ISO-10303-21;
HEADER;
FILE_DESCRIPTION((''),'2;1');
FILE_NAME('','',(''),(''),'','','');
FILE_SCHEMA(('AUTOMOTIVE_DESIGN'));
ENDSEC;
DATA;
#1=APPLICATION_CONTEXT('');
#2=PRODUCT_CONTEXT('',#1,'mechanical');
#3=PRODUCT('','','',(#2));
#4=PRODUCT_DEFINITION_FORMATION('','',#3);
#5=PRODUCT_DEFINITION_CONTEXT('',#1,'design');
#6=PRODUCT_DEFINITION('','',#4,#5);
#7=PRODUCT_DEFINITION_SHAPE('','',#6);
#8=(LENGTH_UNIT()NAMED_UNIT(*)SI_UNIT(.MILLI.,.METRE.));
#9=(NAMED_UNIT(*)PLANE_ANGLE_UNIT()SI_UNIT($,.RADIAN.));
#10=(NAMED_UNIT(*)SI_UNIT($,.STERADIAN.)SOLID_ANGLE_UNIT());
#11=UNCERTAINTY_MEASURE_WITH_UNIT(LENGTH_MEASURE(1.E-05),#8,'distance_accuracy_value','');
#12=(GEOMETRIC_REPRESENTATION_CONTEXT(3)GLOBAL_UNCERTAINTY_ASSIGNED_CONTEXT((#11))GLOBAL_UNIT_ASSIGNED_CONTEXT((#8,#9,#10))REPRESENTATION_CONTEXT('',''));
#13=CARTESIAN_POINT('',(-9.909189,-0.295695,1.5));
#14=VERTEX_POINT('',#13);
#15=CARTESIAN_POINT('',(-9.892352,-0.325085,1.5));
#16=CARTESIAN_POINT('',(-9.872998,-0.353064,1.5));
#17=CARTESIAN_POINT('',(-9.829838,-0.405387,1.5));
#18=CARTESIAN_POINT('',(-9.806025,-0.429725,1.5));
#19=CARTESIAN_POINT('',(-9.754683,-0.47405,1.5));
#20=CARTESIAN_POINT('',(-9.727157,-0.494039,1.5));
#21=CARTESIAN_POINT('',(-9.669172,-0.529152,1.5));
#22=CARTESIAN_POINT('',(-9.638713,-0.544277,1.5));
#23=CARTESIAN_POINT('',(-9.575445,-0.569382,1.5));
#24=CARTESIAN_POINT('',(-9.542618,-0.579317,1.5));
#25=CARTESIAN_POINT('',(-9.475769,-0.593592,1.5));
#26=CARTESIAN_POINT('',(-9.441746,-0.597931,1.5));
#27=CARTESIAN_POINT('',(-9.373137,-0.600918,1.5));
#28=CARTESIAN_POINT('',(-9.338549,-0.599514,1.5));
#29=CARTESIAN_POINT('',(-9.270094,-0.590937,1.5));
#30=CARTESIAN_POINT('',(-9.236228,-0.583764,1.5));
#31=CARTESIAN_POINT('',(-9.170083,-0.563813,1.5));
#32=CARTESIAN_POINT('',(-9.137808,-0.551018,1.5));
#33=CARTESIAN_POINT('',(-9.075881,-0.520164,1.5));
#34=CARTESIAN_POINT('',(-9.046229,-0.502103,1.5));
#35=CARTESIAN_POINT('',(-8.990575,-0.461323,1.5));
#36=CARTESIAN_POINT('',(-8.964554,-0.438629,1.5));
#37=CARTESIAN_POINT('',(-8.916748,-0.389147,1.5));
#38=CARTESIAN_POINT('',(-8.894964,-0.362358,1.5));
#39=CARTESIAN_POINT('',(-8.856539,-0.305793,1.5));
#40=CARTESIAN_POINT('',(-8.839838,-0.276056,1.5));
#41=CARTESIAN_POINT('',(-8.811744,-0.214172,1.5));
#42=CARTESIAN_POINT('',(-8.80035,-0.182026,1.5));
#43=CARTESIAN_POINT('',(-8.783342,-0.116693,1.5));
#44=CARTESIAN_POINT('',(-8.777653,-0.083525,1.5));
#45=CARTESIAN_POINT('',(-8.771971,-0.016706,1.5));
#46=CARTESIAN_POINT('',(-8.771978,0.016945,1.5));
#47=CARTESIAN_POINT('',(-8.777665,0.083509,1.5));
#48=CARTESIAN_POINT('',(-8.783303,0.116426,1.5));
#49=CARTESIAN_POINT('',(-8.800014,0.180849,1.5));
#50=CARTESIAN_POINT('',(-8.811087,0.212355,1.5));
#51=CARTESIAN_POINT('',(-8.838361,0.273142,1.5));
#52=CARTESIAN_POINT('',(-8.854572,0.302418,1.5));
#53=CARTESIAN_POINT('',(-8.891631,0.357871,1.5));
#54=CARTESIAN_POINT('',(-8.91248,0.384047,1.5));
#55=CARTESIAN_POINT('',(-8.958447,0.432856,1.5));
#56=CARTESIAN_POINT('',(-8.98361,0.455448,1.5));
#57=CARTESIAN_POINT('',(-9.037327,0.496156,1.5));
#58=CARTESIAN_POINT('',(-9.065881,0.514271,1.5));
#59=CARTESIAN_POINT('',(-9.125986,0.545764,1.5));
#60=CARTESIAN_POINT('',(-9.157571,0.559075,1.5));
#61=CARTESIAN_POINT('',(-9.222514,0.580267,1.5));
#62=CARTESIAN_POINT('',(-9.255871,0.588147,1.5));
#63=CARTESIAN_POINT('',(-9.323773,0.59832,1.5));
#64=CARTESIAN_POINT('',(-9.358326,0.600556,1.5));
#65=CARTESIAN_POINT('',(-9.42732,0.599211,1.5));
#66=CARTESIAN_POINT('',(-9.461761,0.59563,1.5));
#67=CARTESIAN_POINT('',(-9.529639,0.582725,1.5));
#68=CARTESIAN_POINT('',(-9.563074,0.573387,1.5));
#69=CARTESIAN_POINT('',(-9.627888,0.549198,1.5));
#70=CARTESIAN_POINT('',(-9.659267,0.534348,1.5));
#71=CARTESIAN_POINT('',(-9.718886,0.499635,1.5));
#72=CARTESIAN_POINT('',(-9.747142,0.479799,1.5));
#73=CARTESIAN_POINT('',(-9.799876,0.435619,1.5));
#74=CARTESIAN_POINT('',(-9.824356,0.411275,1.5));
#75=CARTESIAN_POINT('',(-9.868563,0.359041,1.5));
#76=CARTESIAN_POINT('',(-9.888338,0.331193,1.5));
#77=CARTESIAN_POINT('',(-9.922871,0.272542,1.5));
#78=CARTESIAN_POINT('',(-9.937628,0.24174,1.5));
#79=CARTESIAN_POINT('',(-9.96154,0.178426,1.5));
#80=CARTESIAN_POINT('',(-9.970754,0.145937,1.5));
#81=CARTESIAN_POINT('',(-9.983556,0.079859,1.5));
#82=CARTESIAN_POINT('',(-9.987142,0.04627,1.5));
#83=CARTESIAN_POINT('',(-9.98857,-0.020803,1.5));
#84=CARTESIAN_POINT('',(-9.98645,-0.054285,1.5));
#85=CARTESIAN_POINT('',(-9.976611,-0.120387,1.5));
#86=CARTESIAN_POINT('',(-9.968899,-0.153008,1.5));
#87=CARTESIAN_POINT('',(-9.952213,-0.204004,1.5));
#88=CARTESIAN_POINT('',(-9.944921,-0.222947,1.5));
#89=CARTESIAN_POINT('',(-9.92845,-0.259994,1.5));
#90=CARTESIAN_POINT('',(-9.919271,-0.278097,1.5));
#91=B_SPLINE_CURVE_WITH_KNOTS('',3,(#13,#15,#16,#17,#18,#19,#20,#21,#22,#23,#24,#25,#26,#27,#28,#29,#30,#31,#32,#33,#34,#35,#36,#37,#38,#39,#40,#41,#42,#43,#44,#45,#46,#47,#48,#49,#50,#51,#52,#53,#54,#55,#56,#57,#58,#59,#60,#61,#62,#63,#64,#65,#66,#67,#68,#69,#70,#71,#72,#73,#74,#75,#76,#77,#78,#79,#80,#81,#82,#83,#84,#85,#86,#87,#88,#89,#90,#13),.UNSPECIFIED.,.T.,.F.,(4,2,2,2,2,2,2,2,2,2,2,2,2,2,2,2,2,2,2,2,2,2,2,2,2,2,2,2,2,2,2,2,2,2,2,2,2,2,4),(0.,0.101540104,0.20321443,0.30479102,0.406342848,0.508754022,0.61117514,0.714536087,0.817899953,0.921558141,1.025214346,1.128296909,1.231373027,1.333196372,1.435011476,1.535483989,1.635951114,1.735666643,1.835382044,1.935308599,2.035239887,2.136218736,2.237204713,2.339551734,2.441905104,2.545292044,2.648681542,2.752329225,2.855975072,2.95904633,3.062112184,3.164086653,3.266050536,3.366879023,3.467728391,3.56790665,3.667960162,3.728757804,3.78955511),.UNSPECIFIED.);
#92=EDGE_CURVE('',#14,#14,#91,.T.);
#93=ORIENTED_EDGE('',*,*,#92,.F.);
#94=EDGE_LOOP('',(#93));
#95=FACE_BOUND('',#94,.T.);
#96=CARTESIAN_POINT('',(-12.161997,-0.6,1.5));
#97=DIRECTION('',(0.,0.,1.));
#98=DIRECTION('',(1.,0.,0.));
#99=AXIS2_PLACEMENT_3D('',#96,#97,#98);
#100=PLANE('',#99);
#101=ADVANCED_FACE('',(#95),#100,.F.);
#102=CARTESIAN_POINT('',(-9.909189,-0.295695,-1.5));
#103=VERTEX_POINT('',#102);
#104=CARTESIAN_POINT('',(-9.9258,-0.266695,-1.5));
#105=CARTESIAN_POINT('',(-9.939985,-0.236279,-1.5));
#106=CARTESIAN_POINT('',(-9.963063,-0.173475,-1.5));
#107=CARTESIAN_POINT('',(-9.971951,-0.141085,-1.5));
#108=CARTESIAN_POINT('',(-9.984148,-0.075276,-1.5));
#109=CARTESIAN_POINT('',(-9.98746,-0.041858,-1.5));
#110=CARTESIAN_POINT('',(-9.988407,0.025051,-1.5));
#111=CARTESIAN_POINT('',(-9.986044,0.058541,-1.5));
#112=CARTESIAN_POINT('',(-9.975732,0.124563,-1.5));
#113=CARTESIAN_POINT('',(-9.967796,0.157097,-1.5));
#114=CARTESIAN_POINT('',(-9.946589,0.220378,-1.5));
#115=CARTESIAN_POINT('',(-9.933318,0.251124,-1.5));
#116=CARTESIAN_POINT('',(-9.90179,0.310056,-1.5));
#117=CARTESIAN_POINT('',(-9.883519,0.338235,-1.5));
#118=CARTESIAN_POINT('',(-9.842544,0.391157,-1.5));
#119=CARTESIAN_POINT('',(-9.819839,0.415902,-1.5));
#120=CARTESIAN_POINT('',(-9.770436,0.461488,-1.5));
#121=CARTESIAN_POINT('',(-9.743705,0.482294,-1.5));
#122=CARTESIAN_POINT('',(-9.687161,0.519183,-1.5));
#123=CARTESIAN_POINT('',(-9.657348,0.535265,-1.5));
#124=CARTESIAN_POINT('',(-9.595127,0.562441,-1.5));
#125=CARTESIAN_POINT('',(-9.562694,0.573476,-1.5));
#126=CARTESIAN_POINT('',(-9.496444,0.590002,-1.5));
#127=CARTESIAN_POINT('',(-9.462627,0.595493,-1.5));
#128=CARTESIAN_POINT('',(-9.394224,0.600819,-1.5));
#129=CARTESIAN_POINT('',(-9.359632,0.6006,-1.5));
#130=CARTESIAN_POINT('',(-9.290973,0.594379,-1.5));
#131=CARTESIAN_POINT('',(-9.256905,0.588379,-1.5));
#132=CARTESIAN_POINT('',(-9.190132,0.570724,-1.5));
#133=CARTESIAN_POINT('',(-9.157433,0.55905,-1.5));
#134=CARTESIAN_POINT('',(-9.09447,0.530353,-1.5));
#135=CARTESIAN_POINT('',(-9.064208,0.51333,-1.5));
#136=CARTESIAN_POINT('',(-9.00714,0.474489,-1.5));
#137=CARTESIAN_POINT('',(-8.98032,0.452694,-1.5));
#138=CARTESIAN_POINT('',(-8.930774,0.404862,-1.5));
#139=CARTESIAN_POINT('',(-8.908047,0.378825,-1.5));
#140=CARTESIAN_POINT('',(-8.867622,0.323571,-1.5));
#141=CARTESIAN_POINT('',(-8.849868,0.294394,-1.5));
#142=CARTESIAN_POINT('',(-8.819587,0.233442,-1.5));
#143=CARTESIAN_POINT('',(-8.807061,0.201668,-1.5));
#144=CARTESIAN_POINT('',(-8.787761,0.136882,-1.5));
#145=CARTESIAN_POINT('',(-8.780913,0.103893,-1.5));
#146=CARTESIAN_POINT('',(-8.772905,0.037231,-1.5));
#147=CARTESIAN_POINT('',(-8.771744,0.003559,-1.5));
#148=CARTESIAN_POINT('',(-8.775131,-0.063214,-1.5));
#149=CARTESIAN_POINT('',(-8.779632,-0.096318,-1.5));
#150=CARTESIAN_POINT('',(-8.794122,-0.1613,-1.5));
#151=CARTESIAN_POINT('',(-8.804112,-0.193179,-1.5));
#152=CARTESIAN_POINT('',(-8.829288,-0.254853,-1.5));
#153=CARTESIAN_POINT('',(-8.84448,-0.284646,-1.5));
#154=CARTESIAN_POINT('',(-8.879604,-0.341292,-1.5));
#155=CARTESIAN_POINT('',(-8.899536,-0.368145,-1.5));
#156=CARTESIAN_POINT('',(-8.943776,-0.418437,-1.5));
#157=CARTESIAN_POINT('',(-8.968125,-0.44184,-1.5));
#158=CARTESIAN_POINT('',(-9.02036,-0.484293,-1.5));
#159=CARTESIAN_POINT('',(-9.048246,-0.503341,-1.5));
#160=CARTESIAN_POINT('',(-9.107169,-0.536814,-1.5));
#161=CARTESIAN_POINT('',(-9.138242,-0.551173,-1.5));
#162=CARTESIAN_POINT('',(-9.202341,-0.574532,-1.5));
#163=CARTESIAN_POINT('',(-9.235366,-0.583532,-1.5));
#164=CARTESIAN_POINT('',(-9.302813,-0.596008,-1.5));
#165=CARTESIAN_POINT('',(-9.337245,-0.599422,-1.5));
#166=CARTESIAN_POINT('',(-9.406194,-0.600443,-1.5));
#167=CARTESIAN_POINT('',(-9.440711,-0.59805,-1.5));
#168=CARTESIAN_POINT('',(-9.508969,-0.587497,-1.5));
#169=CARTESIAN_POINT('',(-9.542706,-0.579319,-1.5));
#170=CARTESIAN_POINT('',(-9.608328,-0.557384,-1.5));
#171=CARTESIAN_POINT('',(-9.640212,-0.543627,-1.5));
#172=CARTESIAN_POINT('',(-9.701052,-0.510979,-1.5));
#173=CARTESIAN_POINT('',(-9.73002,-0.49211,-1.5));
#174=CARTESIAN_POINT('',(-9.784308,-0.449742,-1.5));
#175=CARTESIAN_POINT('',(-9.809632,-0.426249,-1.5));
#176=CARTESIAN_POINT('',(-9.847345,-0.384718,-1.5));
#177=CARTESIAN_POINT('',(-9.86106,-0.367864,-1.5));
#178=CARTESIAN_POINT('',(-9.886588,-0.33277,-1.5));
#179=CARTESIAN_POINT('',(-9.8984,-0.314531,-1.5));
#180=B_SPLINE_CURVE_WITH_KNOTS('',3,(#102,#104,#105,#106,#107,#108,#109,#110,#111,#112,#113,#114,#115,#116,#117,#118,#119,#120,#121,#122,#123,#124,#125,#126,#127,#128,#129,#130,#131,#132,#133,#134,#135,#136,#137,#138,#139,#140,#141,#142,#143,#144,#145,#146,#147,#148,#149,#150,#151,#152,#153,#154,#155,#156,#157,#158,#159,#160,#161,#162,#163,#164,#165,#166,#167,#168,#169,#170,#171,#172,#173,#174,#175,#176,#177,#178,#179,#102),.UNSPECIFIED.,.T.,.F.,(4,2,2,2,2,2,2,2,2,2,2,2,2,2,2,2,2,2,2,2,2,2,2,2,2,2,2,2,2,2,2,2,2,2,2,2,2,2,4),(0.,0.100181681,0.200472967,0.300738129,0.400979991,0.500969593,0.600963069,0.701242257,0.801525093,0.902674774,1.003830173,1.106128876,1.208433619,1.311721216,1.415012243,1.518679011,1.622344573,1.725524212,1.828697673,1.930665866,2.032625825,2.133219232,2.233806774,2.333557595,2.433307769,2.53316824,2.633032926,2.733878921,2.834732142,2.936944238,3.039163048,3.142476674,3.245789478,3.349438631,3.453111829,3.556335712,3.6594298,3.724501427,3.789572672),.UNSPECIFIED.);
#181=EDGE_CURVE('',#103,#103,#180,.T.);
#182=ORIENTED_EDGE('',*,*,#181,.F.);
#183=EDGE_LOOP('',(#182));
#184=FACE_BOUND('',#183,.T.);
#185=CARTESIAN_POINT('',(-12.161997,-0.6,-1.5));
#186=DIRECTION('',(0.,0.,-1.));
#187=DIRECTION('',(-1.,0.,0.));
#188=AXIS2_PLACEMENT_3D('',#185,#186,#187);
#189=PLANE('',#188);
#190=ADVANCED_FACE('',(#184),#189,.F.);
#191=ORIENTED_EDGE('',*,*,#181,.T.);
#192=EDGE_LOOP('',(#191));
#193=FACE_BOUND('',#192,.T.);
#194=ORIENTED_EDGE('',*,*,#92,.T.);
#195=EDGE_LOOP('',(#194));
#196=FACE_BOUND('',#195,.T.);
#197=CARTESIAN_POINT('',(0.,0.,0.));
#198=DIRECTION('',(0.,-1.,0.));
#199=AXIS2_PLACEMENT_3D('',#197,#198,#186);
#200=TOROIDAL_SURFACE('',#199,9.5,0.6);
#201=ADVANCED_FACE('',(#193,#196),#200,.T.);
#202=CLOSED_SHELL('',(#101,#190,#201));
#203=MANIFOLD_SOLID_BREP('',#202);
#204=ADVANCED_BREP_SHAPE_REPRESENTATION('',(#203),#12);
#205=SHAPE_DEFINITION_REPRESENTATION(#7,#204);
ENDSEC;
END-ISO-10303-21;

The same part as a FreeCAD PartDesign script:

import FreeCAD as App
import Part
import Sketcher
from FreeCAD import Vector

doc = App.newDocument("Part")
params = doc.addObject("Spreadsheet::Sheet", "Params")
for row, (alias, value) in enumerate([
    ("sketch1_diameter", "1.2 mm"),
    ("revolution_angle", "360 deg"),
    ("sketch2_height", "3 mm"),
], start=1):
    params.set(f"A{row}", alias)
    params.set(f"B{row}", "=" + value)
    params.setAlias(f"B{row}", alias)

body = doc.addObject("PartDesign::Body", "Body")

# Sketch on XY plane
sketch1 = doc.addObject("Sketcher::SketchObject", "Sketch")
body.addObject(sketch1)
sketch1.AttachmentSupport = (doc.XY_Plane, [""])
sketch1.MapMode = "FlatFace"
sketch1.addGeometry(Part.Circle(Vector(-9.5, 0, 0), Vector(0, 0, 1), 0.6), False)
sketch1.addConstraint(Sketcher.Constraint("PointOnObject", 0, 3, -1))
sketch1.addConstraint(Sketcher.Constraint("Diameter", 0, 1.2))
sketch1.addConstraint(Sketcher.Constraint("DistanceX", 0, 3, -1, 1, 9.5))
sketch1.setExpression("Constraints[1]", "Params.sketch1_diameter")
revolution = doc.addObject("PartDesign::Revolution", "Revolution")
body.addObject(revolution)
revolution.Profile = sketch1
revolution.ReferenceAxis = (sketch1, ["V_Axis"])
revolution.setExpression("Angle", "Params.revolution_angle")

# Sketch on XZ plane
sketch2 = doc.addObject("Sketcher::SketchObject", "Sketch001")
body.addObject(sketch2)
sketch2.AttachmentSupport = (doc.XZ_Plane, [""])
sketch2.MapMode = "FlatFace"
sketch2.addGeometry(Part.LineSegment(Vector(-12.161997, -1.5, 0), Vector(-12.161997, 1.5, 0)), False)
sketch2.addGeometry(Part.LineSegment(Vector(-12.161997, 1.5, 0), Vector(-7.167249, 1.5, 0)), False)
sketch2.addGeometry(Part.LineSegment(Vector(-7.167249, 1.5, 0), Vector(-7.167249, -1.5, 0)), False)
sketch2.addGeometry(Part.LineSegment(Vector(-7.167249, -1.5, 0), Vector(-12.161997, -1.5, 0)), False)
sketch2.addConstraint(Sketcher.Constraint("Coincident", 0, 2, 1, 1))
sketch2.addConstraint(Sketcher.Constraint("Coincident", 1, 2, 2, 1))
sketch2.addConstraint(Sketcher.Constraint("Coincident", 2, 2, 3, 1))
sketch2.addConstraint(Sketcher.Constraint("Coincident", 3, 2, 0, 1))
sketch2.addConstraint(Sketcher.Constraint("Vertical", 0))
sketch2.addConstraint(Sketcher.Constraint("Horizontal", 1))
sketch2.addConstraint(Sketcher.Constraint("Vertical", 2))
sketch2.addConstraint(Sketcher.Constraint("Horizontal", 3))
sketch2.addConstraint(Sketcher.Constraint("DistanceY", 0, 1, 0, 2, 3.0))
sketch2.addConstraint(Sketcher.Constraint("DistanceY", -1, 1, 0, 2, 1.5))
sketch2.addConstraint(Sketcher.Constraint("DistanceX", 1, 1, 1, 2, 4.994749))
sketch2.addConstraint(Sketcher.Constraint("DistanceX", 1, 2, -1, 1, 7.167249))
sketch2.setExpression("Constraints[8]", "Params.sketch2_height")
pocket1 = doc.addObject("PartDesign::Pocket", "Pocket")
body.addObject(pocket1)
pocket1.Profile = sketch2
pocket1.Type = "ThroughAll"
pocket1.Midplane = True

doc.recompute()
